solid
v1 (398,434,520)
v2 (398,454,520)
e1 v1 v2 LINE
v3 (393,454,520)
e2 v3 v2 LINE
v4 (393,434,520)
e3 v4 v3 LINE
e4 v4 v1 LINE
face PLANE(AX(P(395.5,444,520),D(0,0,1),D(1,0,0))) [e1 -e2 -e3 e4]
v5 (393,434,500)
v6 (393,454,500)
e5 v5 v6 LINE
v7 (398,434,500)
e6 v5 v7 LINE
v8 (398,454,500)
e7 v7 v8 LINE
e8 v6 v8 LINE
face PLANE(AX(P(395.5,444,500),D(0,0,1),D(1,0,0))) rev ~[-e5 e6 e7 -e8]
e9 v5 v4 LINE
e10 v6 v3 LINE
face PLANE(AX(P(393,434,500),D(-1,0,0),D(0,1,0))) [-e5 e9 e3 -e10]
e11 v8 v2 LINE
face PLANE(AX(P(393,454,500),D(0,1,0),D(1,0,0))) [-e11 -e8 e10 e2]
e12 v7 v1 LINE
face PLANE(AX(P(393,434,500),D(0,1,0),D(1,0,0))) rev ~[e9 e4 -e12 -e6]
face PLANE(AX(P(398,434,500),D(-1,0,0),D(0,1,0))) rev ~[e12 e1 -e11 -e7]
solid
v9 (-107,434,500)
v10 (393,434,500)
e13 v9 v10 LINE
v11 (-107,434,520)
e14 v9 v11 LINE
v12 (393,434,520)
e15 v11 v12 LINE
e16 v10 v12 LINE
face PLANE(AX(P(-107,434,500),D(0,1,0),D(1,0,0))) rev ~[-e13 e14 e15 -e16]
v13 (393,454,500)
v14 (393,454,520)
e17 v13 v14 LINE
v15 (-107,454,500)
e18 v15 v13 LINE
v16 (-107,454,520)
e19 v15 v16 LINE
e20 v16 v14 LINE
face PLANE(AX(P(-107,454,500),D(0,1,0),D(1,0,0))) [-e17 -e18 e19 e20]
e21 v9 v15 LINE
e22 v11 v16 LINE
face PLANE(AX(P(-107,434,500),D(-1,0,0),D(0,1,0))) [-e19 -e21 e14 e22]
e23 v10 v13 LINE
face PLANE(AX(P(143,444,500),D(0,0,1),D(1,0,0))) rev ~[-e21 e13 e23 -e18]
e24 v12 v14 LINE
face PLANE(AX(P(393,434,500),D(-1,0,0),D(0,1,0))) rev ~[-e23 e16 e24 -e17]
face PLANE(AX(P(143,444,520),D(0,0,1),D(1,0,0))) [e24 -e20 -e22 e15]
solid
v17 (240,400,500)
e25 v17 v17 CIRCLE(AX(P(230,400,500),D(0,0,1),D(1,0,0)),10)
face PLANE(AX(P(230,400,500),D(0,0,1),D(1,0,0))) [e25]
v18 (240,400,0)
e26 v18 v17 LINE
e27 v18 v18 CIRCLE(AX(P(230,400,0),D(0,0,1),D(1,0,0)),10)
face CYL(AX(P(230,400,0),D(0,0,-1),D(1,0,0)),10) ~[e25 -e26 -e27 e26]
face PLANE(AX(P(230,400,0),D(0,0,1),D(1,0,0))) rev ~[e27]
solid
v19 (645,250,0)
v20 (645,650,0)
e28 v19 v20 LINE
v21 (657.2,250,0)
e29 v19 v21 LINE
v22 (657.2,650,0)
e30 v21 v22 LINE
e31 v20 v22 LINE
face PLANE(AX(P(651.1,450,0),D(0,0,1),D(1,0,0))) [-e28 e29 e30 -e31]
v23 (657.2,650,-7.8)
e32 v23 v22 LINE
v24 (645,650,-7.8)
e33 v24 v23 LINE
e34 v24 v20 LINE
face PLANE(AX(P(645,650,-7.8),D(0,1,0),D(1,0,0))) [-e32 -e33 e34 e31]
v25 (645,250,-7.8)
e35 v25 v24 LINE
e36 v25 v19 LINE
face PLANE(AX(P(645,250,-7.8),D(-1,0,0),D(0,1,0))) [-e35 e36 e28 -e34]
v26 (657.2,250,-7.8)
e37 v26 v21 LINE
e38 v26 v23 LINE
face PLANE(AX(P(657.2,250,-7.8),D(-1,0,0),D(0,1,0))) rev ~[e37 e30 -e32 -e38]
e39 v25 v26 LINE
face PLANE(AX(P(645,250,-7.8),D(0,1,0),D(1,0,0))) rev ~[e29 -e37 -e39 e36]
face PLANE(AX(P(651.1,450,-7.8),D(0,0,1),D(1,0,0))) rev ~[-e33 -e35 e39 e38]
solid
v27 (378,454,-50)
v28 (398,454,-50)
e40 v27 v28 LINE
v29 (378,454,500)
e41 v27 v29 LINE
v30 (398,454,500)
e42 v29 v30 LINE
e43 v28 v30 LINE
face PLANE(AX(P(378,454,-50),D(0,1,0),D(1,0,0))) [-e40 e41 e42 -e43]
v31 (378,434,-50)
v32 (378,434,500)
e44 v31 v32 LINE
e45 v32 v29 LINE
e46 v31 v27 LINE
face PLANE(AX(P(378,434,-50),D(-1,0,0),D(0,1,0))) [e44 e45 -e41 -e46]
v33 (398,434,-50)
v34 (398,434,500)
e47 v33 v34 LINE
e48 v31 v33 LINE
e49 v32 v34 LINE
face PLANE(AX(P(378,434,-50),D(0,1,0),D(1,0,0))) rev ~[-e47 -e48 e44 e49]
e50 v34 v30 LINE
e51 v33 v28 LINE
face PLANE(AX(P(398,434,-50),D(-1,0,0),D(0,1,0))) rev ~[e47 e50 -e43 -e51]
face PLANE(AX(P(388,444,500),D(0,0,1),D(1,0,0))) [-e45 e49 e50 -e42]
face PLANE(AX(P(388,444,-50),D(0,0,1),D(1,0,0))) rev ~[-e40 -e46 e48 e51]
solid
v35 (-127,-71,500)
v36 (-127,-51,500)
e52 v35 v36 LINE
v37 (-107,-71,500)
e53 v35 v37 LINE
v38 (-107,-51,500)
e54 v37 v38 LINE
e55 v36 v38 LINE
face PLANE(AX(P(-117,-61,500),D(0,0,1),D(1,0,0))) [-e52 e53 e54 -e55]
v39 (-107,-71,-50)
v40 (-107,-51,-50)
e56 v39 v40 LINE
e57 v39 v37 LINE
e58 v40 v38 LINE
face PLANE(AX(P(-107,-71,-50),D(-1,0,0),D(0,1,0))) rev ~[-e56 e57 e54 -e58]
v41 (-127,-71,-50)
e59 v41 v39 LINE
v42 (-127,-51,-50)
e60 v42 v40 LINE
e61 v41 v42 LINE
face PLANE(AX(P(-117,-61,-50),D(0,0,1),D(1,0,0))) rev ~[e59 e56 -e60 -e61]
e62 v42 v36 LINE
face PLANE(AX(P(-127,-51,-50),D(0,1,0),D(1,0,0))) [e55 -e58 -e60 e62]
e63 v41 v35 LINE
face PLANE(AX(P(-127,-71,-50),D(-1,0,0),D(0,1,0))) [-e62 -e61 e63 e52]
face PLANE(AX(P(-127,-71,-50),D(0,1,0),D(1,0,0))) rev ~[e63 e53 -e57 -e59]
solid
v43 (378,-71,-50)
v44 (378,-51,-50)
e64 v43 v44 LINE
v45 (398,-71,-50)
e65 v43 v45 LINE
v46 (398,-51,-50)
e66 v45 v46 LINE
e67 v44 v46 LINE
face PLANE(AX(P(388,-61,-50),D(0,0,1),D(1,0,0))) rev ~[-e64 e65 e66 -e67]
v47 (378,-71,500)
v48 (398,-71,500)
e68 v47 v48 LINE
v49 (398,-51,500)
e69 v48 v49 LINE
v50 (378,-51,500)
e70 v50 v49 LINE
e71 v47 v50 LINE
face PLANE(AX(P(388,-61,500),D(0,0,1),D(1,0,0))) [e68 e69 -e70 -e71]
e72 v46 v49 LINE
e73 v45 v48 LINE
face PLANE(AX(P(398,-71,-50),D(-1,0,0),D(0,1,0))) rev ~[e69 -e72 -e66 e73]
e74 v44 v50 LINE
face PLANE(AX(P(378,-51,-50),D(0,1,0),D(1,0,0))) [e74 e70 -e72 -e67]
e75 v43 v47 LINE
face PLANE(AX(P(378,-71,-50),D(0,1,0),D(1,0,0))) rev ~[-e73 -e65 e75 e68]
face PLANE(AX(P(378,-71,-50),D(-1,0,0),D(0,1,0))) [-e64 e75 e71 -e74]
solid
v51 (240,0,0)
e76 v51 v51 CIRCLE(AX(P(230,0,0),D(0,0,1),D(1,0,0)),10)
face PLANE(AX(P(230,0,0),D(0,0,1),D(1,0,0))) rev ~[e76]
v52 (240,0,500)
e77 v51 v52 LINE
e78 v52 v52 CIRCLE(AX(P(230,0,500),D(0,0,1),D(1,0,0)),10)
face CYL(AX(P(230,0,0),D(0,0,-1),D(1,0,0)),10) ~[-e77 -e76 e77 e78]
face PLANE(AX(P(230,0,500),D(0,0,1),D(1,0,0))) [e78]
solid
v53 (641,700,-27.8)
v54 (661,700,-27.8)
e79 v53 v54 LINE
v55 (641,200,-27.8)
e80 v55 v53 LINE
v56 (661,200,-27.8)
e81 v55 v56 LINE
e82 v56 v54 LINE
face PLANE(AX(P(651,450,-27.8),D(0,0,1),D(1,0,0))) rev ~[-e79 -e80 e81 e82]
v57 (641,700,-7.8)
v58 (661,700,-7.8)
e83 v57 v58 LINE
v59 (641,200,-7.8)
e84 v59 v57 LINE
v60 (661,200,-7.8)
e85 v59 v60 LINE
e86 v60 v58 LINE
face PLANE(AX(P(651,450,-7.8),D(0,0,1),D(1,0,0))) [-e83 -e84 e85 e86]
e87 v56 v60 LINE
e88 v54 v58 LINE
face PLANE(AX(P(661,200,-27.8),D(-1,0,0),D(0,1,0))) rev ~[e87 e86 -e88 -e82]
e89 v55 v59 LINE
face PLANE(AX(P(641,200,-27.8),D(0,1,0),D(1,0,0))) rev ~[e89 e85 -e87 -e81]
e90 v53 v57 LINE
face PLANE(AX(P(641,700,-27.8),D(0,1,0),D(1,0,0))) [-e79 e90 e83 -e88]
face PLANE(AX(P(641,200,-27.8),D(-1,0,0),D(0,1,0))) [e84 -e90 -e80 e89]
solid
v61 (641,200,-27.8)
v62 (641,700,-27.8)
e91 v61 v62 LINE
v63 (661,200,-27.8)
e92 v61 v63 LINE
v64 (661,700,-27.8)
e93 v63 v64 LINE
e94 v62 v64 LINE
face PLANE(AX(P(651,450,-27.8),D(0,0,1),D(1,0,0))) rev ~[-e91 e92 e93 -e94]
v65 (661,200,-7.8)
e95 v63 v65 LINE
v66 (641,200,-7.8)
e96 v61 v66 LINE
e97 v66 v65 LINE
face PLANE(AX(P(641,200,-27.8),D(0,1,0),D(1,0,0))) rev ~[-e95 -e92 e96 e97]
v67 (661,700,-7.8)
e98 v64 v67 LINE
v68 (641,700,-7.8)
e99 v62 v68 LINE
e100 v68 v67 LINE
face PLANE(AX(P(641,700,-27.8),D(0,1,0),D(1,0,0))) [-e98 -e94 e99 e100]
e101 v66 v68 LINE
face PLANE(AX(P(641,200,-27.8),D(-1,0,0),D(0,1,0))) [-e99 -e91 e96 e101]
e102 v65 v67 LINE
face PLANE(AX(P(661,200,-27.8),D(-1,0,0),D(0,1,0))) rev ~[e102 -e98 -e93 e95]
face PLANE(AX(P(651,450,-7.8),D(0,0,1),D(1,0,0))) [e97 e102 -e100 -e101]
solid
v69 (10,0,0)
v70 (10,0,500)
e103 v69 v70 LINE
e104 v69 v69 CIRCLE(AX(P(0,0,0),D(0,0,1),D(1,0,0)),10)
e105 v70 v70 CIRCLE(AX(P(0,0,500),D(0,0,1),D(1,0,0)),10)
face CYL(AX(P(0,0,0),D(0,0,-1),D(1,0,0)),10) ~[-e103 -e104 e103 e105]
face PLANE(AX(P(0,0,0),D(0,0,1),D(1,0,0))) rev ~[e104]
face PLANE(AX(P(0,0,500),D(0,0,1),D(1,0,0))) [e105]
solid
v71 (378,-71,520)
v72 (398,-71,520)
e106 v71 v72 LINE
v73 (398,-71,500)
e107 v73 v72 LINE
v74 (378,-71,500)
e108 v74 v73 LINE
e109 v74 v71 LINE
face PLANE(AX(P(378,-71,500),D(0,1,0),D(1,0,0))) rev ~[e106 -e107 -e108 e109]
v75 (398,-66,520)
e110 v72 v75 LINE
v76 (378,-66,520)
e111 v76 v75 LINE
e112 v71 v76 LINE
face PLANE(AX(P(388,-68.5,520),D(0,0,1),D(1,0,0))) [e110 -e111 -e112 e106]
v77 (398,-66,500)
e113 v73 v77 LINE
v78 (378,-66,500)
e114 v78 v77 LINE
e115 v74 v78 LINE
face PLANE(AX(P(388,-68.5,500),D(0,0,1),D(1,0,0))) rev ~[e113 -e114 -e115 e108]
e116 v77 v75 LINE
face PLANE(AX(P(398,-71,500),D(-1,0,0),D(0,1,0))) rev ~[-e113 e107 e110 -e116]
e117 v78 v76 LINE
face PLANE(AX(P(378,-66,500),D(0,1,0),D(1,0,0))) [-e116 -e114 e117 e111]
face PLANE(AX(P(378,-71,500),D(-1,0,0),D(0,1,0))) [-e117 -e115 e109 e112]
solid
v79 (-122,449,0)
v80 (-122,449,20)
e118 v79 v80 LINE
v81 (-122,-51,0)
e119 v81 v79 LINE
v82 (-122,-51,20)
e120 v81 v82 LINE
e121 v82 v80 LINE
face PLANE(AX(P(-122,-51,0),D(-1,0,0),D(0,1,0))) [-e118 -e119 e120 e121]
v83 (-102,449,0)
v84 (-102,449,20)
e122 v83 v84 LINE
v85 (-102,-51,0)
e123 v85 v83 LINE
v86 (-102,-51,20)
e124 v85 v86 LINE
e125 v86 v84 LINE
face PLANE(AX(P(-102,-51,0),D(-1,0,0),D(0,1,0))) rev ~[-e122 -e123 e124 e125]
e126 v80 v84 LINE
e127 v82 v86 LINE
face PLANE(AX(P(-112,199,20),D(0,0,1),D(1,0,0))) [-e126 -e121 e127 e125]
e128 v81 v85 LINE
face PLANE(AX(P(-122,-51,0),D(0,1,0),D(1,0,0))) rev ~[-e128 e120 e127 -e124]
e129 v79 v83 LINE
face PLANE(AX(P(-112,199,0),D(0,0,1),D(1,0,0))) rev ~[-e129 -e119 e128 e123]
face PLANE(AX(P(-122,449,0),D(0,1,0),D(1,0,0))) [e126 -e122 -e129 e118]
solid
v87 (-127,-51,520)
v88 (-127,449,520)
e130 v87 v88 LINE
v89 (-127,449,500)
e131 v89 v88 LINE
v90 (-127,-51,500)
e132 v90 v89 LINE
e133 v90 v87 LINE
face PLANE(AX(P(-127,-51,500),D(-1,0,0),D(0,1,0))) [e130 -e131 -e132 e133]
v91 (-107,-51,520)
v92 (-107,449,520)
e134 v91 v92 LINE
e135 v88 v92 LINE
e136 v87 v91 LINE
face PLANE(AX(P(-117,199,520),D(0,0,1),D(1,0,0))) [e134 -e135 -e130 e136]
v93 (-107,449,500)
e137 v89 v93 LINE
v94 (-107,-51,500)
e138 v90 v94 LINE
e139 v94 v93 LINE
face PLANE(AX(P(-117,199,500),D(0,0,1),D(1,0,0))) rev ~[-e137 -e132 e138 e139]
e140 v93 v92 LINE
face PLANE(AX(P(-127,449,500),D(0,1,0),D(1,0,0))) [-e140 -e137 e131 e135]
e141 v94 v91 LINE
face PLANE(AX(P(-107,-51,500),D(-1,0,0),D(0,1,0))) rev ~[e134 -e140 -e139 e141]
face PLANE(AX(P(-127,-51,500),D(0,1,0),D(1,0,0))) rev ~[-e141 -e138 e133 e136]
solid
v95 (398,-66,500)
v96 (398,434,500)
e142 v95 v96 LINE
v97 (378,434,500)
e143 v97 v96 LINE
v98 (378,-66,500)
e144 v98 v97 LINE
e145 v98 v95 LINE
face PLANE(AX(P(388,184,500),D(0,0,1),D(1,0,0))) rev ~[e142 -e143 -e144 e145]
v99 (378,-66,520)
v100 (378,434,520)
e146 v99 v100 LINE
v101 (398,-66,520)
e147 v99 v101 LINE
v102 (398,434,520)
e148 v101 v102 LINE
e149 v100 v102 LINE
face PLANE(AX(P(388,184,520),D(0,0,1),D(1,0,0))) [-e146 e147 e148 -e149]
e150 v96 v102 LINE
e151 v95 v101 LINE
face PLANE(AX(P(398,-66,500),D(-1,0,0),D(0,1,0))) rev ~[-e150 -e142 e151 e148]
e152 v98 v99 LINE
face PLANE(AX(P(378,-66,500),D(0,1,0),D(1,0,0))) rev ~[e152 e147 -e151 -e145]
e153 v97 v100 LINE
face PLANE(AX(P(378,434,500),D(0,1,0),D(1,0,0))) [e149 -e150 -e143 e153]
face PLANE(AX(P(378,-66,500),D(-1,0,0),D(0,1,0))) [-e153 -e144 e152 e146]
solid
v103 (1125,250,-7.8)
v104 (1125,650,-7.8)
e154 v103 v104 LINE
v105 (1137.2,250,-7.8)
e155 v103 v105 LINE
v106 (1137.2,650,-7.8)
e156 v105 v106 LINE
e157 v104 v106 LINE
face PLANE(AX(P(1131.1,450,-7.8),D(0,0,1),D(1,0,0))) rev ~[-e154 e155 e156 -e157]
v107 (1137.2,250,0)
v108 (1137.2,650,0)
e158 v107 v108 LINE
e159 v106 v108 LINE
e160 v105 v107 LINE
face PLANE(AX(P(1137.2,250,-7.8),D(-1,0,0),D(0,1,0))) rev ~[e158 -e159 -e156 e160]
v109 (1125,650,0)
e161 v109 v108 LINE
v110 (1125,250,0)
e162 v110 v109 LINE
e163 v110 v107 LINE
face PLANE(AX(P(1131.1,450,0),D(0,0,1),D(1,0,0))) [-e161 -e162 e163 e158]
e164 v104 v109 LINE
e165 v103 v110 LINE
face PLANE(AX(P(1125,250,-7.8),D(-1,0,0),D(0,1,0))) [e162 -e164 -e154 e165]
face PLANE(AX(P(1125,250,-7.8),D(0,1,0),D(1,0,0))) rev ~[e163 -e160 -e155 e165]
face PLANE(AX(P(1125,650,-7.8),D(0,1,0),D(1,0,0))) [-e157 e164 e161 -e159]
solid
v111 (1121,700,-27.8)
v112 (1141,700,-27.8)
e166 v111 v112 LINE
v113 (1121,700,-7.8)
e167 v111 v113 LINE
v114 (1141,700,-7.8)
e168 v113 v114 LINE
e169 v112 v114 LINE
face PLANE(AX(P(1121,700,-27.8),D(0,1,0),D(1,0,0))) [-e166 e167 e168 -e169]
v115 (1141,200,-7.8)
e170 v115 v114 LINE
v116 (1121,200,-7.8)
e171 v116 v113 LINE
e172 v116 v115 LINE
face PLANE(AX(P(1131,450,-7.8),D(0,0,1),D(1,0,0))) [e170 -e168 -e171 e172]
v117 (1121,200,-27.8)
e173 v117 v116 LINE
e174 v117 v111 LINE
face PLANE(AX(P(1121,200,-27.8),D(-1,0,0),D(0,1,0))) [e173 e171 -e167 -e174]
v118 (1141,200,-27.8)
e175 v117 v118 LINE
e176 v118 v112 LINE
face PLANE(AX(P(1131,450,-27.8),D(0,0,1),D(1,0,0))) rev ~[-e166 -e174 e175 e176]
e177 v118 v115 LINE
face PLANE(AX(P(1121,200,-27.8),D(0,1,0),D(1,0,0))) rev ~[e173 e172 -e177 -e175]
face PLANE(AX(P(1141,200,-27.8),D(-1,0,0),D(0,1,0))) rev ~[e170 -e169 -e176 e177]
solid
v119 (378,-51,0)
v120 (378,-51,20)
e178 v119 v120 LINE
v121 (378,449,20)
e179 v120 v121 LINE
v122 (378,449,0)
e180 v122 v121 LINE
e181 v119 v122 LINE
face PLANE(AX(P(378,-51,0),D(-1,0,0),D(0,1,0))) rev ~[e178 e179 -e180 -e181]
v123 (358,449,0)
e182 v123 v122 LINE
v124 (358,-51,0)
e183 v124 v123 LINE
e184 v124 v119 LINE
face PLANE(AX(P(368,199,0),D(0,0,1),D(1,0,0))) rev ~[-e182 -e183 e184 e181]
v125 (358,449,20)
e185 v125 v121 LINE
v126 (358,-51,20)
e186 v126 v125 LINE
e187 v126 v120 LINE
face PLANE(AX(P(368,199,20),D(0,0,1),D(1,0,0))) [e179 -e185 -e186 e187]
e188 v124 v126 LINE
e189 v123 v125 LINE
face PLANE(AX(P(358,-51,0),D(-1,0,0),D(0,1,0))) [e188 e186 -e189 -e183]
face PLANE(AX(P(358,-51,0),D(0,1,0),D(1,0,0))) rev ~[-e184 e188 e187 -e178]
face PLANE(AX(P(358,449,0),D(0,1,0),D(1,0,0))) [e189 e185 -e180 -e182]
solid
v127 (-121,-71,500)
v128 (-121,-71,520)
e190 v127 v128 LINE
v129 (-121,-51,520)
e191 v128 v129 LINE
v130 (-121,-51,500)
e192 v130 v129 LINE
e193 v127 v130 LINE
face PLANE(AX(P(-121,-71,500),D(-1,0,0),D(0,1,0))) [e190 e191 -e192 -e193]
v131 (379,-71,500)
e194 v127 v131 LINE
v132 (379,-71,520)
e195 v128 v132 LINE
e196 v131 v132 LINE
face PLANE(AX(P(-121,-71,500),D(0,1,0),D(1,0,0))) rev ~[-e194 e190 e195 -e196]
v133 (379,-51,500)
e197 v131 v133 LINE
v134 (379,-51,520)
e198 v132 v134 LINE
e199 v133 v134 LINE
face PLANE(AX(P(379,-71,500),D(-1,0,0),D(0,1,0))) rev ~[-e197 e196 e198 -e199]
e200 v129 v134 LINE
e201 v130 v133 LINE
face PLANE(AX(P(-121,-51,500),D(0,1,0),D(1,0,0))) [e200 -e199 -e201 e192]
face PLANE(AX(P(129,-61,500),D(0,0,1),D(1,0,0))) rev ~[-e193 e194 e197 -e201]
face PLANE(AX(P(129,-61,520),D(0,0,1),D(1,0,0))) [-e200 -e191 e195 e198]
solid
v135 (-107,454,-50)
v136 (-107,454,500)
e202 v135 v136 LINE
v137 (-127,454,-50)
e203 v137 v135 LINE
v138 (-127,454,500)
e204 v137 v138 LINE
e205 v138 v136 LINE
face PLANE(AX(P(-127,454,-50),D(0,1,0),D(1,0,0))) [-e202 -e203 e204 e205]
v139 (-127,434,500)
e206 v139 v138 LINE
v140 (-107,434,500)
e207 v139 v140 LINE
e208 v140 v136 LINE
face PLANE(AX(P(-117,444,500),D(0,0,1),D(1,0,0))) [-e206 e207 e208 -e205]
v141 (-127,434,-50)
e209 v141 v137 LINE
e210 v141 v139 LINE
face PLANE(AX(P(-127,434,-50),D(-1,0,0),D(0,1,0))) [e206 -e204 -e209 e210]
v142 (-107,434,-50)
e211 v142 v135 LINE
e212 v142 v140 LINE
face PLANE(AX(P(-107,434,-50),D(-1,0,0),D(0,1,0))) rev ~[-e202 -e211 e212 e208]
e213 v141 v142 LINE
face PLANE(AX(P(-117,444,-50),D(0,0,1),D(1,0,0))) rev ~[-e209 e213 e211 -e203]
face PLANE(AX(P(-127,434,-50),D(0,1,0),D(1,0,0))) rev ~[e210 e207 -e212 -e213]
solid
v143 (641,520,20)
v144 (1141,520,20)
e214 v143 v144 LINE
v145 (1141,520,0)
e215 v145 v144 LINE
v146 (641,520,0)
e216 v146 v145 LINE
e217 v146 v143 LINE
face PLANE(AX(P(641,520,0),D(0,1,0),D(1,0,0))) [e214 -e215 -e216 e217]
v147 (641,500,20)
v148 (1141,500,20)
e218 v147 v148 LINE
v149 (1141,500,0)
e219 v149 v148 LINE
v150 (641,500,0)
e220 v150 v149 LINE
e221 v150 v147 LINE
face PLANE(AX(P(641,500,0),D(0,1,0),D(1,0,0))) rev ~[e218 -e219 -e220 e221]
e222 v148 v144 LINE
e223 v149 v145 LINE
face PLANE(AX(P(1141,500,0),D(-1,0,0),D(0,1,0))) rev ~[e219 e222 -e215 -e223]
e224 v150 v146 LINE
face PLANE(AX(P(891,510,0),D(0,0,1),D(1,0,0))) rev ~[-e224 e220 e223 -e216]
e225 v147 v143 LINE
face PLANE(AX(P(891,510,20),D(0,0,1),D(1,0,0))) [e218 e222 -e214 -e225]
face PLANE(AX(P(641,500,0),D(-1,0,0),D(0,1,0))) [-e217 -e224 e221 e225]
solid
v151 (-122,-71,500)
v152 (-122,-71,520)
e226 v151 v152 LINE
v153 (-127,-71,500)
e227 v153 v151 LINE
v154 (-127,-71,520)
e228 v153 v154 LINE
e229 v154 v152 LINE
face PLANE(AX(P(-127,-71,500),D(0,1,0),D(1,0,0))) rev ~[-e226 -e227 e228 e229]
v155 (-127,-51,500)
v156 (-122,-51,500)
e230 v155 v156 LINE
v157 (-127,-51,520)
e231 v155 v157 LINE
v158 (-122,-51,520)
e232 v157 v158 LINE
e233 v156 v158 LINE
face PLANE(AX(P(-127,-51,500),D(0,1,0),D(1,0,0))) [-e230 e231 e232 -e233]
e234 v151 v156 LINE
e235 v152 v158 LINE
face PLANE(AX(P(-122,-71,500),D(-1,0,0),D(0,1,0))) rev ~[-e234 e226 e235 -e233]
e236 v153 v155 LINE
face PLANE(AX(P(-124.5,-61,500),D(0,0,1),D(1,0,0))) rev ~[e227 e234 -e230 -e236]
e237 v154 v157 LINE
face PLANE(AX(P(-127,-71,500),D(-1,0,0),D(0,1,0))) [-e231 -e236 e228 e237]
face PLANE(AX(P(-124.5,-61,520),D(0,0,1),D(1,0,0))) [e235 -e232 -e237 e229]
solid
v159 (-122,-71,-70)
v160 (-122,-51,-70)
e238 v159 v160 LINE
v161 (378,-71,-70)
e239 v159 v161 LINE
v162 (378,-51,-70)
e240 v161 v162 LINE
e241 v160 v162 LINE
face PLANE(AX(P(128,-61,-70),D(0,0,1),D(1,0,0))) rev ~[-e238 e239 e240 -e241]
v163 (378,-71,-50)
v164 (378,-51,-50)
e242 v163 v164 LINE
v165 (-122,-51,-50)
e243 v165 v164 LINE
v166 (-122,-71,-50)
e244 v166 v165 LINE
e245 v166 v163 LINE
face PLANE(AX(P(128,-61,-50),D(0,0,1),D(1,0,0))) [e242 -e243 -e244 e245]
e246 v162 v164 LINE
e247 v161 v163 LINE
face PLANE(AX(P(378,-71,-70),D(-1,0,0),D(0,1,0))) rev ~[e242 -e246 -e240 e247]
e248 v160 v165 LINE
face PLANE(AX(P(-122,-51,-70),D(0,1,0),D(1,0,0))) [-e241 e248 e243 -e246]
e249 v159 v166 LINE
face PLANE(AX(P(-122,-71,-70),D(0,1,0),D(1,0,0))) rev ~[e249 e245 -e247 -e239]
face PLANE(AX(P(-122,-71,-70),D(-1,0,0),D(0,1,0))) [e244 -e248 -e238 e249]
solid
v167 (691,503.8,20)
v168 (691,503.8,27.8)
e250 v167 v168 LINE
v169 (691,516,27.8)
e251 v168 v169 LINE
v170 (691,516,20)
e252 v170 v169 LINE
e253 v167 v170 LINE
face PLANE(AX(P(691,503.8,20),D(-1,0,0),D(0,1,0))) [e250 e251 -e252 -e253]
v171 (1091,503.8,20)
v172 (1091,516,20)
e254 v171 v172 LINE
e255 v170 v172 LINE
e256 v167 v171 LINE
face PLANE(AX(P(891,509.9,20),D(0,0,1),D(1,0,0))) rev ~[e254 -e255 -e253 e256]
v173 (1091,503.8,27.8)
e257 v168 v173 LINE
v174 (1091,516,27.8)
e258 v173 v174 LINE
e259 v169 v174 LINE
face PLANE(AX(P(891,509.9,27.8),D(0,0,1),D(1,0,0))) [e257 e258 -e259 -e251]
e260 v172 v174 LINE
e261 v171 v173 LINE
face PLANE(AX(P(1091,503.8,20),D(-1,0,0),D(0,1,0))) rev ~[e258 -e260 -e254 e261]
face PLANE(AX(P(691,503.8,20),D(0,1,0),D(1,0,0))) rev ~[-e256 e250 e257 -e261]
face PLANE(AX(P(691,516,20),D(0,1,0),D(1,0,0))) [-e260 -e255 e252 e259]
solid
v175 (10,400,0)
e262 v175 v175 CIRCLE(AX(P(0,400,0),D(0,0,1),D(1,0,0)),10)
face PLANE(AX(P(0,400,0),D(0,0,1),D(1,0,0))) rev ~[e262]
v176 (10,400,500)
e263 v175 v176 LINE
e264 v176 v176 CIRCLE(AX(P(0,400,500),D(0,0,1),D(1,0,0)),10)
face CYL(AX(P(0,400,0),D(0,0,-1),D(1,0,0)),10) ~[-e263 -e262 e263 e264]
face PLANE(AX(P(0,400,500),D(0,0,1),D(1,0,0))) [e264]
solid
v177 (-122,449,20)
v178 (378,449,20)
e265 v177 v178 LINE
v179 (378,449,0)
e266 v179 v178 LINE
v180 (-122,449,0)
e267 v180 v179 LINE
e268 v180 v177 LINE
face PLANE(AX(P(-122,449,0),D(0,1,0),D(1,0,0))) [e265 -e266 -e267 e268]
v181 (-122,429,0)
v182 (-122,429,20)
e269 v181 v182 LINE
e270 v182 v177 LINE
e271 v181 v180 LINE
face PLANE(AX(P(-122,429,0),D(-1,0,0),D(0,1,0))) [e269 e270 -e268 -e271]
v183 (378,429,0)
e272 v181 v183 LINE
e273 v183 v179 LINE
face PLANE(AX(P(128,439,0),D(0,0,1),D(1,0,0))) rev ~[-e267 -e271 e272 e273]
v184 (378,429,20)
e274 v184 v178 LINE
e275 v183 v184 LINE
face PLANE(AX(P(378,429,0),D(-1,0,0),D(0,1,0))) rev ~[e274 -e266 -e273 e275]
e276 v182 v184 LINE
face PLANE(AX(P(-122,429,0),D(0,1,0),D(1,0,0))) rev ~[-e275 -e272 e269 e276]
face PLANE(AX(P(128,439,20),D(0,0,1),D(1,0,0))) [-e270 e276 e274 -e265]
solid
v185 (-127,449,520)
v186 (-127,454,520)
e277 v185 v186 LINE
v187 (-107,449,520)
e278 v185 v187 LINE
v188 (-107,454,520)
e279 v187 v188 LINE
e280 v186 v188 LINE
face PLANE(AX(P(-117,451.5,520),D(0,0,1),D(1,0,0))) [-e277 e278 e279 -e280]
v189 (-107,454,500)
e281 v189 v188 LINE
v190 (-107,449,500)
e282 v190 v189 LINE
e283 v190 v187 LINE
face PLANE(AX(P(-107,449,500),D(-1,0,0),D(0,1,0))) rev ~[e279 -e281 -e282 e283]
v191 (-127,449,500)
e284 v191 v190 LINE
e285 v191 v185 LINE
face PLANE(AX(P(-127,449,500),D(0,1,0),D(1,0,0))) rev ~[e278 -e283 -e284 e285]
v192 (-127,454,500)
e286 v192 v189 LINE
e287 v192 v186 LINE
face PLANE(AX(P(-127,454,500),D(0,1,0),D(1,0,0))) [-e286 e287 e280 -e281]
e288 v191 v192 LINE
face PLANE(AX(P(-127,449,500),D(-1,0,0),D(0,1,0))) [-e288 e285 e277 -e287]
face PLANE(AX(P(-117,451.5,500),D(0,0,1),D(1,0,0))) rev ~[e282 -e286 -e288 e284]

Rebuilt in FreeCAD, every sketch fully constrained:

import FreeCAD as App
import Part
import Sketcher

V = App.Vector


def add_polygon(sketch, points):
    """Adds a closed chain of lines whose ends are joined by coincident constraints."""
    first, n = sketch.GeometryCount, len(points)
    for a, b in zip(points, points[1:] + points[:1]):
        sketch.addGeometry(Part.LineSegment(App.Vector(*a, 0), App.Vector(*b, 0)), False)
    for i in range(n):
        sketch.addConstraint(Sketcher.Constraint("Coincident", first + i, 2, first + (i + 1) % n, 1))

doc = App.newDocument("Part")
body = doc.addObject("PartDesign::Body", "Body")

sketch1 = body.newObject("Sketcher::SketchObject", "Sketch")
sketch1.AttachmentSupport = (doc.getObject("XY_Plane"), [""])
sketch1.MapMode = "FlatFace"
sketch1.addGeometry(Part.Circle(V(230, 0, 0), V(0, 0, 1), 10), False)
sketch1.addConstraint([
    Sketcher.Constraint("PointOnObject", 0, 3, -1),
    Sketcher.Constraint("Diameter", 0, 20.0),
    Sketcher.Constraint("DistanceX", -1, 1, 0, 3, 230.0),
])
pad1 = body.newObject("PartDesign::Pad", "Pad")
pad1.Profile = sketch1
pad1.Length = 500
body2 = doc.addObject("PartDesign::Body", "Body001")

sketch2 = body2.newObject("Sketcher::SketchObject", "Sketch001")
sketch2.AttachmentSupport = (doc.getObject("XY_Plane001"), [""])
sketch2.MapMode = "FlatFace"
sketch2.addGeometry(Part.Circle(V(230, 400, 0), V(0, 0, 1), 10), False)
sketch2.addConstraint([
    Sketcher.Constraint("Diameter", 0, 20.0),
    Sketcher.Constraint("DistanceX", -1, 1, 0, 3, 230.0),
    Sketcher.Constraint("DistanceY", -1, 1, 0, 3, 400.0),
])
pad2 = body2.newObject("PartDesign::Pad", "Pad001")
pad2.Profile = sketch2
pad2.Length = 500
body3 = doc.addObject("PartDesign::Body", "Body002")

sketch3 = body3.newObject("Sketcher::SketchObject", "Sketch002")
sketch3.AttachmentSupport = (doc.getObject("XY_Plane002"), [""])
sketch3.MapMode = "FlatFace"
sketch3.addGeometry(Part.Circle(V(0, 400, 0), V(0, 0, 1), 10), False)
sketch3.addConstraint([
    Sketcher.Constraint("PointOnObject", 0, 3, -2),
    Sketcher.Constraint("Diameter", 0, 20.0),
    Sketcher.Constraint("DistanceY", -1, 1, 0, 3, 400.0),
])
pad3 = body3.newObject("PartDesign::Pad", "Pad002")
pad3.Profile = sketch3
pad3.Length = 500
body4 = doc.addObject("PartDesign::Body", "Body003")

sketch4 = body4.newObject("Sketcher::SketchObject", "Sketch003")
sketch4.AttachmentSupport = (doc.getObject("XY_Plane003"), [""])
sketch4.MapMode = "FlatFace"
sketch4.addGeometry(Part.Circle(V(0, 0, 0), V(0, 0, 1), 10), False)
sketch4.addConstraint([
    Sketcher.Constraint("Coincident", 0, 3, -1, 1),
    Sketcher.Constraint("Diameter", 0, 20.0),
])
pad4 = body4.newObject("PartDesign::Pad", "Pad003")
pad4.Profile = sketch4
pad4.Length = 500
body5 = doc.addObject("PartDesign::Body", "Body004")

sketch5 = body5.newObject("Sketcher::SketchObject", "Sketch004")
sketch5.AttachmentSupport = (doc.getObject("XY_Plane004"), [""])
sketch5.MapMode = "FlatFace"
sketch5.AttachmentOffset = App.Placement(V(0, 0, -50), App.Rotation())
add_polygon(sketch5, [(-127, -51), (-127, -71), (-107, -71), (-107, -51)])
sketch5.addConstraint([
    Sketcher.Constraint("Vertical", 0),
    Sketcher.Constraint("Horizontal", 1),
    Sketcher.Constraint("Vertical", 2),
    Sketcher.Constraint("Horizontal", 3),
    Sketcher.Constraint("Equal", 3, 0),
    Sketcher.Constraint("DistanceX", 1, 1, 1, 2, 20.0),
    Sketcher.Constraint("DistanceX", 0, 2, -1, 1, 127.0),
    Sketcher.Constraint("DistanceY", 0, 2, -1, 1, 71.0),
])
pad5 = body5.newObject("PartDesign::Pad", "Pad004")
pad5.Profile = sketch5
pad5.Length = 550
body6 = doc.addObject("PartDesign::Body", "Body005")

sketch6 = body6.newObject("Sketcher::SketchObject", "Sketch005")
sketch6.AttachmentSupport = (doc.getObject("XY_Plane005"), [""])
sketch6.MapMode = "FlatFace"
sketch6.AttachmentOffset = App.Placement(V(0, 0, -70), App.Rotation())
add_polygon(sketch6, [(-122, -51), (-122, -71), (378, -71), (378, -51)])
sketch6.addConstraint([
    Sketcher.Constraint("Vertical", 0),
    Sketcher.Constraint("Horizontal", 1),
    Sketcher.Constraint("Vertical", 2),
    Sketcher.Constraint("Horizontal", 3),
    Sketcher.Constraint("DistanceX", 1, 1, 1, 2, 500.0),
    Sketcher.Constraint("DistanceY", 0, 2, 0, 1, 20.0),
    Sketcher.Constraint("DistanceX", 0, 2, -1, 1, 122.0),
    Sketcher.Constraint("DistanceY", 0, 2, -1, 1, 71.0),
])
pad6 = body6.newObject("PartDesign::Pad", "Pad005")
pad6.Profile = sketch6
pad6.Length = 20
body7 = doc.addObject("PartDesign::Body", "Body006")

sketch7 = body7.newObject("Sketcher::SketchObject", "Sketch006")
sketch7.AttachmentSupport = (doc.getObject("XY_Plane006"), [""])
sketch7.MapMode = "FlatFace"
add_polygon(sketch7, [(-122, 449), (-122, 429), (378, 429), (378, 449)])
sketch7.addConstraint([
    Sketcher.Constraint("Vertical", 0),
    Sketcher.Constraint("Horizontal", 1),
    Sketcher.Constraint("Vertical", 2),
    Sketcher.Constraint("Horizontal", 3),
    Sketcher.Constraint("DistanceX", 1, 1, 1, 2, 500.0),
    Sketcher.Constraint("DistanceY", 0, 2, 0, 1, 20.0),
    Sketcher.Constraint("DistanceX", 0, 2, -1, 1, 122.0),
    Sketcher.Constraint("DistanceY", -1, 1, 0, 2, 429.0),
])
pad7 = body7.newObject("PartDesign::Pad", "Pad006")
pad7.Profile = sketch7
pad7.Length = 20
body8 = doc.addObject("PartDesign::Body", "Body007")

sketch8 = body8.newObject("Sketcher::SketchObject", "Sketch007")
sketch8.AttachmentSupport = (doc.getObject("XY_Plane007"), [""])
sketch8.MapMode = "FlatFace"
add_polygon(sketch8, [(-122, 449), (-122, -51), (-102, -51), (-102, 449)])
sketch8.addConstraint([
    Sketcher.Constraint("Vertical", 0),
    Sketcher.Constraint("Horizontal", 1),
    Sketcher.Constraint("Vertical", 2),
    Sketcher.Constraint("Horizontal", 3),
    Sketcher.Constraint("DistanceX", 1, 1, 1, 2, 20.0),
    Sketcher.Constraint("DistanceY", 0, 2, 0, 1, 500.0),
    Sketcher.Constraint("DistanceX", 0, 2, -1, 1, 122.0),
    Sketcher.Constraint("DistanceY", 0, 2, -1, 1, 51.0),
])
pad8 = body8.newObject("PartDesign::Pad", "Pad007")
pad8.Profile = sketch8
pad8.Length = 20
body9 = doc.addObject("PartDesign::Body", "Body008")

sketch9 = body9.newObject("Sketcher::SketchObject", "Sketch008")
sketch9.AttachmentSupport = (doc.getObject("XY_Plane008"), [""])
sketch9.MapMode = "FlatFace"
add_polygon(sketch9, [(358, 449), (358, -51), (378, -51), (378, 449)])
sketch9.addConstraint([
    Sketcher.Constraint("Vertical", 0),
    Sketcher.Constraint("Horizontal", 1),
    Sketcher.Constraint("Vertical", 2),
    Sketcher.Constraint("Horizontal", 3),
    Sketcher.Constraint("DistanceX", 1, 1, 1, 2, 20.0),
    Sketcher.Constraint("DistanceY", 0, 2, 0, 1, 500.0),
    Sketcher.Constraint("DistanceX", -1, 1, 0, 2, 358.0),
    Sketcher.Constraint("DistanceY", 0, 2, -1, 1, 51.0),
])
pad9 = body9.newObject("PartDesign::Pad", "Pad008")
pad9.Profile = sketch9
pad9.Length = 20
body10 = doc.addObject("PartDesign::Body", "Body009")

sketch10 = body10.newObject("Sketcher::SketchObject", "Sketch009")
sketch10.AttachmentSupport = (doc.getObject("XY_Plane009"), [""])
sketch10.MapMode = "FlatFace"
sketch10.AttachmentOffset = App.Placement(V(0, 0, -50), App.Rotation())
add_polygon(sketch10, [(378, -51), (378, -71), (398, -71), (398, -51)])
sketch10.addConstraint([
    Sketcher.Constraint("Vertical", 0),
    Sketcher.Constraint("Horizontal", 1),
    Sketcher.Constraint("Vertical", 2),
    Sketcher.Constraint("Horizontal", 3),
    Sketcher.Constraint("Equal", 3, 0),
    Sketcher.Constraint("DistanceX", 1, 1, 1, 2, 20.0),
    Sketcher.Constraint("DistanceX", -1, 1, 0, 2, 378.0),
    Sketcher.Constraint("DistanceY", 0, 2, -1, 1, 71.0),
])
pad10 = body10.newObject("PartDesign::Pad", "Pad009")
pad10.Profile = sketch10
pad10.Length = 550
body11 = doc.addObject("PartDesign::Body", "Body010")

sketch11 = body11.newObject("Sketcher::SketchObject", "Sketch010")
sketch11.AttachmentSupport = (doc.getObject("XY_Plane010"), [""])
sketch11.MapMode = "FlatFace"
sketch11.AttachmentOffset = App.Placement(V(0, 0, -50), App.Rotation())
add_polygon(sketch11, [(378, 454), (378, 434), (398, 434), (398, 454)])
sketch11.addConstraint([
    Sketcher.Constraint("Vertical", 0),
    Sketcher.Constraint("Horizontal", 1),
    Sketcher.Constraint("Vertical", 2),
    Sketcher.Constraint("Horizontal", 3),
    Sketcher.Constraint("Equal", 3, 0),
    Sketcher.Constraint("DistanceX", 1, 1, 1, 2, 20.0),
    Sketcher.Constraint("DistanceX", -1, 1, 0, 2, 378.0),
    Sketcher.Constraint("DistanceY", -1, 1, 0, 2, 434.0),
])
pad11 = body11.newObject("PartDesign::Pad", "Pad010")
pad11.Profile = sketch11
pad11.Length = 550
body12 = doc.addObject("PartDesign::Body", "Body011")

sketch12 = body12.newObject("Sketcher::SketchObject", "Sketch011")
sketch12.AttachmentSupport = (doc.getObject("XY_Plane011"), [""])
sketch12.MapMode = "FlatFace"
sketch12.AttachmentOffset = App.Placement(V(0, 0, -50), App.Rotation())
add_polygon(sketch12, [(-127, 454), (-127, 434), (-107, 434), (-107, 454)])
sketch12.addConstraint([
    Sketcher.Constraint("Vertical", 0),
    Sketcher.Constraint("Horizontal", 1),
    Sketcher.Constraint("Vertical", 2),
    Sketcher.Constraint("Horizontal", 3),
    Sketcher.Constraint("Equal", 3, 0),
    Sketcher.Constraint("DistanceX", 1, 1, 1, 2, 20.0),
    Sketcher.Constraint("DistanceX", 0, 2, -1, 1, 127.0),
    Sketcher.Constraint("DistanceY", -1, 1, 0, 2, 434.0),
])
pad12 = body12.newObject("PartDesign::Pad", "Pad011")
pad12.Profile = sketch12
pad12.Length = 550
body13 = doc.addObject("PartDesign::Body", "Body012")

sketch13 = body13.newObject("Sketcher::SketchObject", "Sketch012")
sketch13.AttachmentSupport = (doc.getObject("XY_Plane012"), [""])
sketch13.MapMode = "FlatFace"
sketch13.AttachmentOffset = App.Placement(V(0, 0, 500), App.Rotation())
add_polygon(sketch13, [(-121, -51), (-121, -71), (379, -71), (379, -51)])
sketch13.addConstraint([
    Sketcher.Constraint("Vertical", 0),
    Sketcher.Constraint("Horizontal", 1),
    Sketcher.Constraint("Vertical", 2),
    Sketcher.Constraint("Horizontal", 3),
    Sketcher.Constraint("DistanceX", 1, 1, 1, 2, 500.0),
    Sketcher.Constraint("DistanceY", 0, 2, 0, 1, 20.0),
    Sketcher.Constraint("DistanceX", 0, 2, -1, 1, 121.0),
    Sketcher.Constraint("DistanceY", 0, 2, -1, 1, 71.0),
])
pad13 = body13.newObject("PartDesign::Pad", "Pad012")
pad13.Profile = sketch13
pad13.Length = 20
body14 = doc.addObject("PartDesign::Body", "Body013")

sketch14 = body14.newObject("Sketcher::SketchObject", "Sketch013")
sketch14.AttachmentSupport = (doc.getObject("XY_Plane013"), [""])
sketch14.MapMode = "FlatFace"
sketch14.AttachmentOffset = App.Placement(V(0, 0, 500), App.Rotation())
add_polygon(sketch14, [(-107, 454), (-107, 434), (393, 434), (393, 454)])
sketch14.addConstraint([
    Sketcher.Constraint("Vertical", 0),
    Sketcher.Constraint("Horizontal", 1),
    Sketcher.Constraint("Vertical", 2),
    Sketcher.Constraint("Horizontal", 3),
    Sketcher.Constraint("DistanceX", 1, 1, 1, 2, 500.0),
    Sketcher.Constraint("DistanceY", 0, 2, 0, 1, 20.0),
    Sketcher.Constraint("DistanceX", 0, 2, -1, 1, 107.0),
    Sketcher.Constraint("DistanceY", -1, 1, 0, 2, 434.0),
])
pad14 = body14.newObject("PartDesign::Pad", "Pad013")
pad14.Profile = sketch14
pad14.Length = 20
body15 = doc.addObject("PartDesign::Body", "Body014")

sketch15 = body15.newObject("Sketcher::SketchObject", "Sketch014")
sketch15.AttachmentSupport = (doc.getObject("XY_Plane014"), [""])
sketch15.MapMode = "FlatFace"
sketch15.AttachmentOffset = App.Placement(V(0, 0, 500), App.Rotation())
add_polygon(sketch15, [(378, 434), (378, -66), (398, -66), (398, 434)])
sketch15.addConstraint([
    Sketcher.Constraint("Vertical", 0),
    Sketcher.Constraint("Horizontal", 1),
    Sketcher.Constraint("Vertical", 2),
    Sketcher.Constraint("Horizontal", 3),
    Sketcher.Constraint("DistanceX", 1, 1, 1, 2, 20.0),
    Sketcher.Constraint("DistanceY", 0, 2, 0, 1, 500.0),
    Sketcher.Constraint("DistanceX", -1, 1, 0, 2, 378.0),
    Sketcher.Constraint("DistanceY", 0, 2, -1, 1, 66.0),
])
pad15 = body15.newObject("PartDesign::Pad", "Pad014")
pad15.Profile = sketch15
pad15.Length = 20
body16 = doc.addObject("PartDesign::Body", "Body015")

sketch16 = body16.newObject("Sketcher::SketchObject", "Sketch015")
sketch16.AttachmentSupport = (doc.getObject("XY_Plane015"), [""])
sketch16.MapMode = "FlatFace"
sketch16.AttachmentOffset = App.Placement(V(0, 0, 500), App.Rotation())
add_polygon(sketch16, [(-127, 454), (-127, 449), (-107, 449), (-107, 454)])
sketch16.addConstraint([
    Sketcher.Constraint("Vertical", 0),
    Sketcher.Constraint("Horizontal", 1),
    Sketcher.Constraint("Vertical", 2),
    Sketcher.Constraint("Horizontal", 3),
    Sketcher.Constraint("DistanceX", 1, 1, 1, 2, 20.0),
    Sketcher.Constraint("DistanceY", 0, 2, 0, 1, 5.0),
    Sketcher.Constraint("DistanceX", 0, 2, -1, 1, 127.0),
    Sketcher.Constraint("DistanceY", -1, 1, 0, 2, 449.0),
])
pad16 = body16.newObject("PartDesign::Pad", "Pad015")
pad16.Profile = sketch16
pad16.Length = 20
body17 = doc.addObject("PartDesign::Body", "Body016")

sketch17 = body17.newObject("Sketcher::SketchObject", "Sketch016")
sketch17.AttachmentSupport = (doc.getObject("XY_Plane016"), [""])
sketch17.MapMode = "FlatFace"
sketch17.AttachmentOffset = App.Placement(V(0, 0, 500), App.Rotation())
add_polygon(sketch17, [(-127, 449), (-127, -51), (-107, -51), (-107, 449)])
sketch17.addConstraint([
    Sketcher.Constraint("Vertical", 0),
    Sketcher.Constraint("Horizontal", 1),
    Sketcher.Constraint("Vertical", 2),
    Sketcher.Constraint("Horizontal", 3),
    Sketcher.Constraint("DistanceX", 1, 1, 1, 2, 20.0),
    Sketcher.Constraint("DistanceY", 0, 2, 0, 1, 500.0),
    Sketcher.Constraint("DistanceX", 0, 2, -1, 1, 127.0),
    Sketcher.Constraint("DistanceY", 0, 2, -1, 1, 51.0),
])
pad17 = body17.newObject("PartDesign::Pad", "Pad016")
pad17.Profile = sketch17
pad17.Length = 20
body18 = doc.addObject("PartDesign::Body", "Body017")

sketch18 = body18.newObject("Sketcher::SketchObject", "Sketch017")
sketch18.AttachmentSupport = (doc.getObject("XY_Plane017"), [""])
sketch18.MapMode = "FlatFace"
sketch18.AttachmentOffset = App.Placement(V(0, 0, 500), App.Rotation())
add_polygon(sketch18, [(378, -66), (378, -71), (398, -71), (398, -66)])
sketch18.addConstraint([
    Sketcher.Constraint("Vertical", 0),
    Sketcher.Constraint("Horizontal", 1),
    Sketcher.Constraint("Vertical", 2),
    Sketcher.Constraint("Horizontal", 3),
    Sketcher.Constraint("DistanceX", 1, 1, 1, 2, 20.0),
    Sketcher.Constraint("DistanceY", 0, 2, 0, 1, 5.0),
    Sketcher.Constraint("DistanceX", -1, 1, 0, 2, 378.0),
    Sketcher.Constraint("DistanceY", 0, 2, -1, 1, 71.0),
])
pad18 = body18.newObject("PartDesign::Pad", "Pad017")
pad18.Profile = sketch18
pad18.Length = 20
body19 = doc.addObject("PartDesign::Body", "Body018")

sketch19 = body19.newObject("Sketcher::SketchObject", "Sketch018")
sketch19.AttachmentSupport = (doc.getObject("XY_Plane018"), [""])
sketch19.MapMode = "FlatFace"
sketch19.AttachmentOffset = App.Placement(V(0, 0, 500), App.Rotation())
add_polygon(sketch19, [(393, 454), (393, 434), (398, 434), (398, 454)])
sketch19.addConstraint([
    Sketcher.Constraint("Vertical", 0),
    Sketcher.Constraint("Horizontal", 1),
    Sketcher.Constraint("Vertical", 2),
    Sketcher.Constraint("Horizontal", 3),
    Sketcher.Constraint("DistanceX", 1, 1, 1, 2, 5.0),
    Sketcher.Constraint("DistanceY", 0, 2, 0, 1, 20.0),
    Sketcher.Constraint("DistanceX", -1, 1, 0, 2, 393.0),
    Sketcher.Constraint("DistanceY", -1, 1, 0, 2, 434.0),
])
pad19 = body19.newObject("PartDesign::Pad", "Pad018")
pad19.Profile = sketch19
pad19.Length = 20
body20 = doc.addObject("PartDesign::Body", "Body019")

sketch20 = body20.newObject("Sketcher::SketchObject", "Sketch019")
sketch20.AttachmentSupport = (doc.getObject("XY_Plane019"), [""])
sketch20.MapMode = "FlatFace"
sketch20.AttachmentOffset = App.Placement(V(0, 0, 500), App.Rotation())
add_polygon(sketch20, [(-127, -51), (-127, -71), (-122, -71), (-122, -51)])
sketch20.addConstraint([
    Sketcher.Constraint("Vertical", 0),
    Sketcher.Constraint("Horizontal", 1),
    Sketcher.Constraint("Vertical", 2),
    Sketcher.Constraint("Horizontal", 3),
    Sketcher.Constraint("DistanceX", 1, 1, 1, 2, 5.0),
    Sketcher.Constraint("DistanceY", 0, 2, 0, 1, 20.0),
    Sketcher.Constraint("DistanceX", 0, 2, -1, 1, 127.0),
    Sketcher.Constraint("DistanceY", 0, 2, -1, 1, 71.0),
])
pad20 = body20.newObject("PartDesign::Pad", "Pad019")
pad20.Profile = sketch20
pad20.Length = 20
body21 = doc.addObject("PartDesign::Body", "Body020")

sketch21 = body21.newObject("Sketcher::SketchObject", "Sketch020")
sketch21.AttachmentSupport = (doc.getObject("XY_Plane020"), [""])
sketch21.MapMode = "FlatFace"
sketch21.AttachmentOffset = App.Placement(V(0, 0, -27.8), App.Rotation())
add_polygon(sketch21, [(641, 700), (641, 200), (661, 200), (661, 700)])
sketch21.addConstraint([
    Sketcher.Constraint("Vertical", 0),
    Sketcher.Constraint("Horizontal", 1),
    Sketcher.Constraint("Vertical", 2),
    Sketcher.Constraint("Horizontal", 3),
    Sketcher.Constraint("DistanceX", 1, 1, 1, 2, 20.0),
    Sketcher.Constraint("DistanceY", 0, 2, 0, 1, 500.0),
    Sketcher.Constraint("DistanceX", -1, 1, 0, 2, 641.0),
    Sketcher.Constraint("DistanceY", -1, 1, 0, 2, 200.0),
])
pad21 = body21.newObject("PartDesign::Pad", "Pad020")
pad21.Profile = sketch21
pad21.Length = 20
body22 = doc.addObject("PartDesign::Body", "Body021")

sketch22 = body22.newObject("Sketcher::SketchObject", "Sketch021")
sketch22.AttachmentSupport = (doc.getObject("XY_Plane021"), [""])
sketch22.MapMode = "FlatFace"
sketch22.AttachmentOffset = App.Placement(V(0, 0, -27.8), App.Rotation())
add_polygon(sketch22, [(1121, 700), (1121, 200), (1141, 200), (1141, 700)])
sketch22.addConstraint([
    Sketcher.Constraint("Vertical", 0),
    Sketcher.Constraint("Horizontal", 1),
    Sketcher.Constraint("Vertical", 2),
    Sketcher.Constraint("Horizontal", 3),
    Sketcher.Constraint("DistanceX", 1, 1, 1, 2, 20.0),
    Sketcher.Constraint("DistanceY", 0, 2, 0, 1, 500.0),
    Sketcher.Constraint("DistanceX", -1, 1, 0, 2, 1121.0),
    Sketcher.Constraint("DistanceY", -1, 1, 0, 2, 200.0),
])
pad22 = body22.newObject("PartDesign::Pad", "Pad021")
pad22.Profile = sketch22
pad22.Length = 20
body23 = doc.addObject("PartDesign::Body", "Body022")

sketch23 = body23.newObject("Sketcher::SketchObject", "Sketch022")
sketch23.AttachmentSupport = (doc.getObject("XY_Plane022"), [""])
sketch23.MapMode = "FlatFace"
add_polygon(sketch23, [(641, 520), (641, 500), (1141, 500), (1141, 520)])
sketch23.addConstraint([
    Sketcher.Constraint("Vertical", 0),
    Sketcher.Constraint("Horizontal", 1),
    Sketcher.Constraint("Vertical", 2),
    Sketcher.Constraint("Horizontal", 3),
    Sketcher.Constraint("DistanceX", 1, 1, 1, 2, 500.0),
    Sketcher.Constraint("DistanceY", 0, 2, 0, 1, 20.0),
    Sketcher.Constraint("DistanceX", -1, 1, 0, 2, 641.0),
    Sketcher.Constraint("DistanceY", -1, 1, 0, 2, 500.0),
])
pad23 = body23.newObject("PartDesign::Pad", "Pad022")
pad23.Profile = sketch23
pad23.Length = 20
body24 = doc.addObject("PartDesign::Body", "Body023")

sketch24 = body24.newObject("Sketcher::SketchObject", "Sketch023")
sketch24.AttachmentSupport = (doc.getObject("XY_Plane023"), [""])
sketch24.MapMode = "FlatFace"
sketch24.AttachmentOffset = App.Placement(V(0, 0, 20), App.Rotation())
add_polygon(sketch24, [(691, 516), (691, 503.8), (1091, 503.8), (1091, 516)])
sketch24.addConstraint([
    Sketcher.Constraint("Vertical", 0),
    Sketcher.Constraint("Horizontal", 1),
    Sketcher.Constraint("Vertical", 2),
    Sketcher.Constraint("Horizontal", 3),
    Sketcher.Constraint("DistanceX", 1, 1, 1, 2, 400.0),
    Sketcher.Constraint("DistanceY", 0, 2, 0, 1, 12.2),
    Sketcher.Constraint("DistanceX", -1, 1, 0, 2, 691.0),
    Sketcher.Constraint("DistanceY", -1, 1, 2, 2, 516.0),
])
pad24 = body24.newObject("PartDesign::Pad", "Pad023")
pad24.Profile = sketch24
pad24.Length = 7.8
body25 = doc.addObject("PartDesign::Body", "Body024")

sketch25 = body25.newObject("Sketcher::SketchObject", "Sketch024")
sketch25.AttachmentSupport = (doc.getObject("XY_Plane024"), [""])
sketch25.MapMode = "FlatFace"
sketch25.AttachmentOffset = App.Placement(V(0, 0, -7.8), App.Rotation())
add_polygon(sketch25, [(645, 650), (645, 250), (657.2, 250), (657.2, 650)])
sketch25.addConstraint([
    Sketcher.Constraint("Vertical", 0),
    Sketcher.Constraint("Horizontal", 1),
    Sketcher.Constraint("Vertical", 2),
    Sketcher.Constraint("Horizontal", 3),
    Sketcher.Constraint("DistanceY", 0, 2, 0, 1, 400.0),
    Sketcher.Constraint("DistanceX", 1, 1, 1, 2, 12.2),
    Sketcher.Constraint("DistanceX", -1, 1, 0, 2, 645.0),
    Sketcher.Constraint("DistanceY", -1, 1, 0, 2, 250.0),
])
pad25 = body25.newObject("PartDesign::Pad", "Pad024")
pad25.Profile = sketch25
pad25.Length = 7.8
body26 = doc.addObject("PartDesign::Body", "Body025")

sketch26 = body26.newObject("Sketcher::SketchObject", "Sketch025")
sketch26.AttachmentSupport = (doc.getObject("XY_Plane025"), [""])
sketch26.MapMode = "FlatFace"
sketch26.AttachmentOffset = App.Placement(V(0, 0, -7.8), App.Rotation())
add_polygon(sketch26, [(1125, 650), (1125, 250), (1137.2, 250), (1137.2, 650)])
sketch26.addConstraint([
    Sketcher.Constraint("Vertical", 0),
    Sketcher.Constraint("Horizontal", 1),
    Sketcher.Constraint("Vertical", 2),
    Sketcher.Constraint("Horizontal", 3),
    Sketcher.Constraint("DistanceY", 0, 2, 0, 1, 400.0),
    Sketcher.Constraint("DistanceX", 1, 1, 1, 2, 12.2),
    Sketcher.Constraint("DistanceX", -1, 1, 0, 2, 1125.0),
    Sketcher.Constraint("DistanceY", -1, 1, 0, 2, 250.0),
])
pad26 = body26.newObject("PartDesign::Pad", "Pad025")
pad26.Profile = sketch26
pad26.Length = 7.8
body27 = doc.addObject("PartDesign::Body", "Body026")

sketch27 = body27.newObject("Sketcher::SketchObject", "Sketch026")
sketch27.AttachmentSupport = (doc.getObject("XY_Plane026"), [""])
sketch27.MapMode = "FlatFace"
sketch27.AttachmentOffset = App.Placement(V(0, 0, -27.8), App.Rotation())
add_polygon(sketch27, [(641, 700), (641, 200), (661, 200), (661, 700)])
sketch27.addConstraint([
    Sketcher.Constraint("Vertical", 0),
    Sketcher.Constraint("Horizontal", 1),
    Sketcher.Constraint("Vertical", 2),
    Sketcher.Constraint("Horizontal", 3),
    Sketcher.Constraint("DistanceX", 1, 1, 1, 2, 20.0),
    Sketcher.Constraint("DistanceY", 0, 2, 0, 1, 500.0),
    Sketcher.Constraint("DistanceX", -1, 1, 0, 2, 641.0),
    Sketcher.Constraint("DistanceY", -1, 1, 0, 2, 200.0),
])
pad27 = body27.newObject("PartDesign::Pad", "Pad026")
pad27.Profile = sketch27
pad27.Length = 20

doc.recompute()
